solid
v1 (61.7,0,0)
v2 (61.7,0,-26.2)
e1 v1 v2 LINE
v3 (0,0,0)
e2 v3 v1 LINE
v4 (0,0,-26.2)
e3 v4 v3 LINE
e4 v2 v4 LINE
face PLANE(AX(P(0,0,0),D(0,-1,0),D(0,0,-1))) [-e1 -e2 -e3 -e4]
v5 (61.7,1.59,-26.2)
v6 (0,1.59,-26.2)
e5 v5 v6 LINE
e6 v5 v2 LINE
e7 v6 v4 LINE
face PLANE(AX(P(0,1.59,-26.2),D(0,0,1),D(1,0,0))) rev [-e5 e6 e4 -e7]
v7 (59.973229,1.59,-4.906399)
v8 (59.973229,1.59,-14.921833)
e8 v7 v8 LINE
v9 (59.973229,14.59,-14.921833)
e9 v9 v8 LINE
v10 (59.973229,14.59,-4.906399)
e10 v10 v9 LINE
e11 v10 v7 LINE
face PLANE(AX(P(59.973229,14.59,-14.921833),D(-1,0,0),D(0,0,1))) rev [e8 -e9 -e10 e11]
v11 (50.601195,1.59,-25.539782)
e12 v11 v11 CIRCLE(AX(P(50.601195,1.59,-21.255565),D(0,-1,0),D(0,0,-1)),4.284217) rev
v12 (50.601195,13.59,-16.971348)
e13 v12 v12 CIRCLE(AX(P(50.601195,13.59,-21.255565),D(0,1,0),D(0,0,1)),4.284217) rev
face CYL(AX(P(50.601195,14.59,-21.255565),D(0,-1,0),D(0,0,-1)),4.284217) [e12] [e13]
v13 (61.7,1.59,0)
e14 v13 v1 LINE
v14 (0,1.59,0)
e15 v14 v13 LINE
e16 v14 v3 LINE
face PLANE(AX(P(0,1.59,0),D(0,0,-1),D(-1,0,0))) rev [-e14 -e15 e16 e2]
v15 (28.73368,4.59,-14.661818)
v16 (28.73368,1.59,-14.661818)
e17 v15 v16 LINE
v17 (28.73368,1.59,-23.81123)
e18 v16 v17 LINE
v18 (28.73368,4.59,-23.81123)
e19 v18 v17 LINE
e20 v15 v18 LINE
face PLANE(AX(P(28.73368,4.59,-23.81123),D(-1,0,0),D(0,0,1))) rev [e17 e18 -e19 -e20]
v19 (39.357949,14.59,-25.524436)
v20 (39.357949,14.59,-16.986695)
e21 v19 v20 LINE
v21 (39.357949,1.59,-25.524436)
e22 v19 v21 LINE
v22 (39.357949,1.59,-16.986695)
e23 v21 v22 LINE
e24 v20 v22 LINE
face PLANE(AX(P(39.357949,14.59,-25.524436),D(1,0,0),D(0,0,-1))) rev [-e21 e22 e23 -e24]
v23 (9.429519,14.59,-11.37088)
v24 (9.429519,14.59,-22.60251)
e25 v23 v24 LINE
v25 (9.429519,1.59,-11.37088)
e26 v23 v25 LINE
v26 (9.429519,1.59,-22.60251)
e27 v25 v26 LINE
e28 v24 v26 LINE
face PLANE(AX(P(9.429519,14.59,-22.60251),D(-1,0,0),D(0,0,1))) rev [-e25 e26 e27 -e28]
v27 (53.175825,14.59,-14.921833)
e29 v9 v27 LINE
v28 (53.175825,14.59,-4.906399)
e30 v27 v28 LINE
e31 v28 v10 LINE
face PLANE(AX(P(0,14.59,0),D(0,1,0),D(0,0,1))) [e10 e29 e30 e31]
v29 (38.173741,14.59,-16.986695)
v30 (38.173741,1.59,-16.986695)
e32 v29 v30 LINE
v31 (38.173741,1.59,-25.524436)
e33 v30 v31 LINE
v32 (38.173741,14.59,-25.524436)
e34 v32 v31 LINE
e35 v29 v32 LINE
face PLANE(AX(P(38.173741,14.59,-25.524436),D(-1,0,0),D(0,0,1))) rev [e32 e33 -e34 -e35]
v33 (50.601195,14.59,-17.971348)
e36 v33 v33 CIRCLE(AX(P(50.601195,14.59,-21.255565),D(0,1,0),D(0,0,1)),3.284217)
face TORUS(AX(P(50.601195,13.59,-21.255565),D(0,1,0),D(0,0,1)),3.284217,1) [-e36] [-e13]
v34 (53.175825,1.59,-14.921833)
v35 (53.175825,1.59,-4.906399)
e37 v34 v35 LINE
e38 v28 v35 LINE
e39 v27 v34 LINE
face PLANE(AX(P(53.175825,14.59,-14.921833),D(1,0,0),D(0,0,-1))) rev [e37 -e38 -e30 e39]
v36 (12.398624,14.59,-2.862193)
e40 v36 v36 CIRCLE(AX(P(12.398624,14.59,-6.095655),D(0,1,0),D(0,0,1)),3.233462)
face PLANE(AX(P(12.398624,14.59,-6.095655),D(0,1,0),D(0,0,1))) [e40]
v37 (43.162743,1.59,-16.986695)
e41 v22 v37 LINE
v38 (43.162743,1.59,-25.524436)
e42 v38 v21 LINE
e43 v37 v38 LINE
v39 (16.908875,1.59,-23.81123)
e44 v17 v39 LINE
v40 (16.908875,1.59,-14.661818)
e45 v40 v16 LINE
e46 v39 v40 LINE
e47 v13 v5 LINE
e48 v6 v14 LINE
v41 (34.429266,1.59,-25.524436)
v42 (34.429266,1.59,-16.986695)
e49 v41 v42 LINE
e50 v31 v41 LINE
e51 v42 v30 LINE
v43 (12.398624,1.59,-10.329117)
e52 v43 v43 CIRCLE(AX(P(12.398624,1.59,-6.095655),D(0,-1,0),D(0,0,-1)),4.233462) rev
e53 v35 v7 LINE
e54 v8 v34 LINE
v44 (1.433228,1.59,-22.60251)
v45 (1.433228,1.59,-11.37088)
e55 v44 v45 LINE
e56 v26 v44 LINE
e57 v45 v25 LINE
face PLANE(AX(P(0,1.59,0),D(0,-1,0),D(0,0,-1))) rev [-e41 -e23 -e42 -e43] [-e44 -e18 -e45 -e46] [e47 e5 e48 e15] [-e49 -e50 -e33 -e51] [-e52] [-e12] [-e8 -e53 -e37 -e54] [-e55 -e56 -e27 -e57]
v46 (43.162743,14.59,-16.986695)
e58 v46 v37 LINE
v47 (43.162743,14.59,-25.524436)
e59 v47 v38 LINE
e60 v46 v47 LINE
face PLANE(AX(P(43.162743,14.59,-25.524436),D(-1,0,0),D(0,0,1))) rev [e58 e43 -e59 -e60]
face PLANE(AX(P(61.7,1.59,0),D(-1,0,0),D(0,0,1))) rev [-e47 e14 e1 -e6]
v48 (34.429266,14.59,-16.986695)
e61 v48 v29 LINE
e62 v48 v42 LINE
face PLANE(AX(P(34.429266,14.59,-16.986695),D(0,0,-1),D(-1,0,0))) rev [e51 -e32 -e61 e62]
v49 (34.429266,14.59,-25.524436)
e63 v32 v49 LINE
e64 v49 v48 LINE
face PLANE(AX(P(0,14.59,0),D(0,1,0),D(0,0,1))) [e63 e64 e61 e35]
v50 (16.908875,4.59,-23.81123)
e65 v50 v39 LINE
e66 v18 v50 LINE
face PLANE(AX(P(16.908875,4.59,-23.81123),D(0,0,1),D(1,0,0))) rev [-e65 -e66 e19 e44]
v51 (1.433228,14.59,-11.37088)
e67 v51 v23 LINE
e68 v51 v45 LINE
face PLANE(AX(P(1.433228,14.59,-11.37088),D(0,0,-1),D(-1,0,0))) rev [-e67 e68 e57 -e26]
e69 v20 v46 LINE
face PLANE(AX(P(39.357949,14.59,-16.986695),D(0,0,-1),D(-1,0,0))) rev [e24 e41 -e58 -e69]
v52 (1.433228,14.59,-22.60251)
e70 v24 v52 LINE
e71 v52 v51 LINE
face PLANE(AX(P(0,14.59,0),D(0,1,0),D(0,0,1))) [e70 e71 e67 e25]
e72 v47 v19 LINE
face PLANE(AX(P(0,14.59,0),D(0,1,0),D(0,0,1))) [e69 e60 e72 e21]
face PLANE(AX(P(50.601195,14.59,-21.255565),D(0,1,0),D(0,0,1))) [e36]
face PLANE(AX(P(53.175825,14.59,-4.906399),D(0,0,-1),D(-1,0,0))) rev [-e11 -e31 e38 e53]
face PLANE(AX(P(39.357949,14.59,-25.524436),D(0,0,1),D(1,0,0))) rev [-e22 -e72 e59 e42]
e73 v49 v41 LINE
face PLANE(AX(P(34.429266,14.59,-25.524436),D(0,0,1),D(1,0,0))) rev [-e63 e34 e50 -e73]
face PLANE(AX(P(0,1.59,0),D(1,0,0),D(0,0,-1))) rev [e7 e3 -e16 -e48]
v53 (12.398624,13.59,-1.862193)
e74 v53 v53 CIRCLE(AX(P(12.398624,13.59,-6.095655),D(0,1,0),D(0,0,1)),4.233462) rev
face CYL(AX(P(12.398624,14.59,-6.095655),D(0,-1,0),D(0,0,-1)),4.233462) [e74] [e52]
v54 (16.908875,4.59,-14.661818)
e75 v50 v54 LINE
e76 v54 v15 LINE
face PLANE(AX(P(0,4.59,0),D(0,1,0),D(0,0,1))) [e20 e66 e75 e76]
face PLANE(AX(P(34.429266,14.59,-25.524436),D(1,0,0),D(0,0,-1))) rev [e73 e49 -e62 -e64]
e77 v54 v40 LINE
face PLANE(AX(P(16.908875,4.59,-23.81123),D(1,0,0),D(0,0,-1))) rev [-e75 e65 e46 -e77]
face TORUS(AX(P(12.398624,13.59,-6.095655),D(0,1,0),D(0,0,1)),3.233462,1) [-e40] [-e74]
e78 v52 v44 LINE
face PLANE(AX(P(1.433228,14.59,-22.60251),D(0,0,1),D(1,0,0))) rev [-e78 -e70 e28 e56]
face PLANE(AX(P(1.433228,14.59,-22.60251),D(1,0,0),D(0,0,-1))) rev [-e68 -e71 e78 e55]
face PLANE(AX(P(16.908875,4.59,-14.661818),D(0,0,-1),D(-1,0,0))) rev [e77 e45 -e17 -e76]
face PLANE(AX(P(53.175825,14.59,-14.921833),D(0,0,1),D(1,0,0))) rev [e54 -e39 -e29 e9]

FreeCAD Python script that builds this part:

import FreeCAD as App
import Part
import Sketcher


def edges_at(feature, points):
    """Names of the edges that pass closest to the given points."""
    edges = feature.Shape.Edges
    near = lambda p: min(range(len(edges)), key=lambda i: edges[i].distToShape(Part.Vertex(*p))[0])
    return sorted({f"Edge{near(p) + 1}" for p in points})


def add_polygon(sketch, points):
    """Adds a closed chain of lines whose ends are joined by coincident constraints."""
    first, n = sketch.GeometryCount, len(points)
    for a, b in zip(points, points[1:] + points[:1]):
        sketch.addGeometry(Part.LineSegment(App.Vector(*a, 0), App.Vector(*b, 0)), False)
    for i in range(n):
        sketch.addConstraint(Sketcher.Constraint("Coincident", first + i, 2, first + (i + 1) % n, 1))

doc = App.newDocument("Part")
body = doc.addObject("PartDesign::Body", "Body")

# Sketch on XZ plane
sketch1 = doc.addObject("Sketcher::SketchObject", "Sketch")
body.addObject(sketch1)
sketch1.AttachmentSupport = (doc.XZ_Plane, [""])
sketch1.MapMode = "FlatFace"
add_polygon(sketch1, [(0, -26), (0, 0), (62, 0), (62, -26)])  # lines 0-3
sketch1.addConstraint([
    Sketcher.Constraint("Vertical", 0),
    Sketcher.Constraint("Horizontal", 1),
    Sketcher.Constraint("Vertical", 2),
    Sketcher.Constraint("Horizontal", 3),
    Sketcher.Constraint("Coincident", 0, 2, -1, 1),
    Sketcher.Constraint("DistanceX", 1, 1, 1, 2, 61.7),
    Sketcher.Constraint("DistanceY", 0, 1, 0, 2, 26.2),
])
pad1 = doc.addObject("PartDesign::Pad", "Pad")
body.addObject(pad1)
pad1.Profile = sketch1
pad1.Length = 1.59
pad1.Reversed = True

# Sketch on XZ plane
sketch2 = doc.addObject("Sketcher::SketchObject", "Sketch001")
body.addObject(sketch2)
sketch2.AttachmentSupport = (doc.XZ_Plane, [""])
sketch2.MapMode = "FlatFace"
sketch2.AttachmentOffset = App.Placement(App.Vector(0, 0, -1.59), App.Rotation())
sketch2.addGeometry(Part.Circle(App.Vector(50.6, -21.3, 0), App.Vector(0, 0, 1), 4.3), False)  # 0
sketch2.addGeometry(Part.Circle(App.Vector(12.4, -6.1, 0), App.Vector(0, 0, 1), 4.2), False)  # 1
add_polygon(sketch2, [(1.4, -22.6), (1.4, -11.4), (9.4, -11.4), (9.4, -22.6)])  # lines 2-5
add_polygon(sketch2, [(53.2, -14.9), (53.2, -4.9), (60, -4.9), (60, -14.9)])  # lines 6-9
add_polygon(sketch2, [(34.4, -25.5), (34.4, -17), (38.2, -17), (38.2, -25.5)])  # lines 10-13
add_polygon(sketch2, [(39.4, -25.5), (39.4, -17), (43.2, -17), (43.2, -25.5)])  # lines 14-17
sketch2.addConstraint([
    Sketcher.Constraint("Vertical", 2),
    Sketcher.Constraint("Horizontal", 3),
    Sketcher.Constraint("Vertical", 4),
    Sketcher.Constraint("Horizontal", 5),
    Sketcher.Constraint("Vertical", 6),
    Sketcher.Constraint("Horizontal", 7),
    Sketcher.Constraint("Vertical", 8),
    Sketcher.Constraint("Horizontal", 9),
    Sketcher.Constraint("Vertical", 10),
    Sketcher.Constraint("Horizontal", 11),
    Sketcher.Constraint("Vertical", 12),
    Sketcher.Constraint("Horizontal", 13),
    Sketcher.Constraint("Vertical", 14),
    Sketcher.Constraint("Horizontal", 15),
    Sketcher.Constraint("Vertical", 16),
    Sketcher.Constraint("Horizontal", 17),
    Sketcher.Constraint("Horizontal", 11, 2, 14, 2),
    Sketcher.Constraint("Horizontal", 13, 2, 16, 2),
    Sketcher.Constraint("Diameter", 0, 8.568434),
    Sketcher.Constraint("Diameter", 1, 8.466924),
    Sketcher.Constraint("DistanceX", 11, 2, 15, 2, 4.989002),
    Sketcher.Constraint("DistanceX", 3, 1, 3, 2, 7.996291),
    Sketcher.Constraint("DistanceY", 2, 1, 2, 2, 11.23163),
    Sketcher.Constraint("DistanceY", 10, 1, 10, 2, 8.537741),
    Sketcher.Constraint("DistanceY", 6, 2, -1, 1, 4.906399),
    Sketcher.Constraint("DistanceX", 1, 3, 6, 2, 40.7772),
    Sketcher.Constraint("DistanceX", 7, 1, 7, 2, 6.797404),
    Sketcher.Constraint("DistanceX", 11, 1, 11, 2, 3.744476),
    Sketcher.Constraint("DistanceX", 15, 1, 15, 2, 3.804794),
    Sketcher.Constraint("DistanceY", 6, 1, 6, 2, 10.015434),
    Sketcher.Constraint("DistanceY", 2, 2, -1, 1, 11.37088),
    Sketcher.Constraint("DistanceX", -1, 1, 3, 2, 9.429519),
    Sketcher.Constraint("DistanceX", -1, 1, 7, 2, 59.973229),
    Sketcher.Constraint("DistanceX", -1, 1, 11, 2, 38.173741),
    Sketcher.Constraint("DistanceX", 1, 3, 0, 3, 38.202571),
    Sketcher.Constraint("DistanceY", 0, 3, 1, 3, 15.15991),
    Sketcher.Constraint("DistanceY", 0, 3, 10, 2, 4.26887),
    Sketcher.Constraint("DistanceY", 0, 3, -1, 1, 21.255565),
])
pad2 = doc.addObject("PartDesign::Pad", "Pad001")
body.addObject(pad2)
pad2.Profile = sketch2
pad2.Length = 13
pad2.Reversed = True
doc.recompute()

fillet = doc.addObject("PartDesign::Fillet", "Fillet")
body.addObject(fillet)
fillet.Base = (pad2, edges_at(pad2, [(46.317, 14.59, -21.256), (8.165, 14.59, -6.096)]))
fillet.Radius = 1

# Sketch on XZ plane
sketch3 = doc.addObject("Sketcher::SketchObject", "Sketch002")
body.addObject(sketch3)
sketch3.AttachmentSupport = (doc.XZ_Plane, [""])
sketch3.MapMode = "FlatFace"
sketch3.AttachmentOffset = App.Placement(App.Vector(0, 0, -1.59), App.Rotation())
add_polygon(sketch3, [(17, -24), (17, -15), (29, -15), (29, -24)])  # lines 0-3
sketch3.addConstraint([
    Sketcher.Constraint("Vertical", 0),
    Sketcher.Constraint("Horizontal", 1),
    Sketcher.Constraint("Vertical", 2),
    Sketcher.Constraint("Horizontal", 3),
    Sketcher.Constraint("DistanceY", 0, 1, 0, 2, 9.149411),
    Sketcher.Constraint("DistanceX", 1, 1, 1, 2, 11.824805),
    Sketcher.Constraint("DistanceY", 0, 2, -1, 1, 14.661818),
    Sketcher.Constraint("DistanceX", -1, 1, 1, 2, 28.73368),
])
pad3 = doc.addObject("PartDesign::Pad", "Pad002")
body.addObject(pad3)
pad3.Profile = sketch3
pad3.Length = 3
pad3.Reversed = True

doc.recompute()
